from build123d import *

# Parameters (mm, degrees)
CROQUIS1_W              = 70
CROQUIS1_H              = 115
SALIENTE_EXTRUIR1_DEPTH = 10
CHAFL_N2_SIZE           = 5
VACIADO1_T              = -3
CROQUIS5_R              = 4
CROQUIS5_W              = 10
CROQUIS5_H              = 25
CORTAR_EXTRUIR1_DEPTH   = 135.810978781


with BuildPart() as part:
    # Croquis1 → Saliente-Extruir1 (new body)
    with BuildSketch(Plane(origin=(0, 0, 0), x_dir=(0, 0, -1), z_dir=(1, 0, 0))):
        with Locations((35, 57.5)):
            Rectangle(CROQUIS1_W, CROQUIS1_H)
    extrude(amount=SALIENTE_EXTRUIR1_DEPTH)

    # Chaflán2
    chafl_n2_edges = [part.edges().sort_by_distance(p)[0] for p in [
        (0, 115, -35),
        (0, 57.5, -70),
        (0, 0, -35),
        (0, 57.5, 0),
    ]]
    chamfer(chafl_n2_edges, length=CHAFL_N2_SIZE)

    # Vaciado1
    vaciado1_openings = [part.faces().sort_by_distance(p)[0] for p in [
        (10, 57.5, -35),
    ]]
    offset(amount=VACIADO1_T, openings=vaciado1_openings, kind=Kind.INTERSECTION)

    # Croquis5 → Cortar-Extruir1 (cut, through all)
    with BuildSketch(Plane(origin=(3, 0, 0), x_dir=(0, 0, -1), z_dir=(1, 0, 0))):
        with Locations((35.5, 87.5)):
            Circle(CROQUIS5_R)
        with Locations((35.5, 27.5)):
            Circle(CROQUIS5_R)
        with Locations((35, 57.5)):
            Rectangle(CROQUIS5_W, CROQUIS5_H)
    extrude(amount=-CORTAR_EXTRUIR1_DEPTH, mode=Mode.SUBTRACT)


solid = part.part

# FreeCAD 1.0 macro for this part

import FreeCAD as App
import Part
import Sketcher
from FreeCAD import Vector


def edges_at(feature, points):
    """Names of the edges that pass closest to the given points."""
    edges = feature.Shape.Edges
    near = lambda p: min(range(len(edges)), key=lambda i: edges[i].distToShape(Part.Vertex(*p))[0])
    return sorted({f"Edge{near(p) + 1}" for p in points})


def faces_at(feature, points):
    """Names of the faces that lie closest to the given points."""
    faces = feature.Shape.Faces
    near = lambda p: min(range(len(faces)), key=lambda i: faces[i].distToShape(Part.Vertex(*p))[0])
    return sorted({f"Face{near(p) + 1}" for p in points})


def add_polygon(sketch, points):
    """Adds a closed chain of lines whose ends are joined by coincident constraints."""
    first, n = sketch.GeometryCount, len(points)
    for a, b in zip(points, points[1:] + points[:1]):
        sketch.addGeometry(Part.LineSegment(App.Vector(*a, 0), App.Vector(*b, 0)), False)
    for i in range(n):
        sketch.addConstraint(Sketcher.Constraint("Coincident", first + i, 2, first + (i + 1) % n, 1))

doc = App.newDocument("Part")
body = doc.addObject("PartDesign::Body", "Body")

sketch1 = body.newObject("Sketcher::SketchObject", "Sketch")
sketch1.AttachmentSupport = (doc.getObject("YZ_Plane"), [""])
sketch1.MapMode = "FlatFace"
add_polygon(sketch1, [(115, 0), (0, 0), (0, -70), (115, -70)])
sketch1.addConstraint(Sketcher.Constraint("Horizontal", 0))
sketch1.addConstraint(Sketcher.Constraint("Vertical", 1))
sketch1.addConstraint(Sketcher.Constraint("Horizontal", 2))
sketch1.addConstraint(Sketcher.Constraint("Vertical", 3))
sketch1.addConstraint(Sketcher.Constraint("Coincident", 0, 2, -1, 1))
sketch1.addConstraint(Sketcher.Constraint("DistanceX", 0, 2, 0, 1, 115.0))
sketch1.addConstraint(Sketcher.Constraint("DistanceY", 1, 2, 1, 1, 70.0))
pad1 = body.newObject("PartDesign::Pad", "Pad")
pad1.Profile = sketch1
pad1.Length = 10
doc.recompute()

chamfer = body.newObject("PartDesign::Chamfer", "Chamfer")
chamfer.Base = (pad1, edges_at(pad1, [
    (0, 115, -35),
    (0, 57.5, -70),
    (0, 0, -35),
    (0, 57.5, 0),
]))
chamfer.Size = 5
doc.recompute()

thickness = body.newObject("PartDesign::Thickness", "Thickness")
thickness.Base = (chamfer, faces_at(chamfer, [(10, 57.5, -35)]))
thickness.Value = 3
thickness.Reversed = True
thickness.Join = "Intersection"

sketch2 = body.newObject("Sketcher::SketchObject", "Sketch001")
sketch2.AttachmentSupport = (doc.getObject("YZ_Plane"), [""])
sketch2.MapMode = "FlatFace"
sketch2.AttachmentOffset = App.Placement(Vector(0, 0, 3), App.Rotation())
sketch2.addGeometry(Part.Circle(Vector(87.5, -35.5, 0), Vector(0, 0, 1), 4), False)
sketch2.addGeometry(Part.Circle(Vector(27.5, -35.5, 0), Vector(0, 0, 1), 4), False)
add_polygon(sketch2, [(70, -30), (45, -30), (45, -40), (70, -40)])
sketch2.addConstraint(Sketcher.Constraint("Horizontal", 2))
sketch2.addConstraint(Sketcher.Constraint("Vertical", 3))
sketch2.addConstraint(Sketcher.Constraint("Horizontal", 4))
sketch2.addConstraint(Sketcher.Constraint("Vertical", 5))
sketch2.addConstraint(Sketcher.Constraint("Equal", 0, 1))
sketch2.addConstraint(Sketcher.Constraint("Horizontal", 0, 3, 1, 3))
sketch2.addConstraint(Sketcher.Constraint("Diameter", 0, 8.0))
sketch2.addConstraint(Sketcher.Constraint("DistanceX", 2, 2, 2, 1, 25.0))
sketch2.addConstraint(Sketcher.Constraint("DistanceY", 3, 2, 3, 1, 10.0))
sketch2.addConstraint(Sketcher.Constraint("DistanceX", -1, 1, 2, 2, 45.0))
sketch2.addConstraint(Sketcher.Constraint("DistanceY", 2, 2, -1, 1, 30.0))
sketch2.addConstraint(Sketcher.Constraint("DistanceX", 1, 3, 0, 3, 60.0))
sketch2.addConstraint(Sketcher.Constraint("DistanceX", -1, 1, 0, 3, 87.5))
sketch2.addConstraint(Sketcher.Constraint("DistanceY", 0, 3, -1, 1, 35.5))
pocket1 = body.newObject("PartDesign::Pocket", "Pocket")
pocket1.Profile = sketch2
pocket1.Type = "ThroughAll"

doc.recompute()
